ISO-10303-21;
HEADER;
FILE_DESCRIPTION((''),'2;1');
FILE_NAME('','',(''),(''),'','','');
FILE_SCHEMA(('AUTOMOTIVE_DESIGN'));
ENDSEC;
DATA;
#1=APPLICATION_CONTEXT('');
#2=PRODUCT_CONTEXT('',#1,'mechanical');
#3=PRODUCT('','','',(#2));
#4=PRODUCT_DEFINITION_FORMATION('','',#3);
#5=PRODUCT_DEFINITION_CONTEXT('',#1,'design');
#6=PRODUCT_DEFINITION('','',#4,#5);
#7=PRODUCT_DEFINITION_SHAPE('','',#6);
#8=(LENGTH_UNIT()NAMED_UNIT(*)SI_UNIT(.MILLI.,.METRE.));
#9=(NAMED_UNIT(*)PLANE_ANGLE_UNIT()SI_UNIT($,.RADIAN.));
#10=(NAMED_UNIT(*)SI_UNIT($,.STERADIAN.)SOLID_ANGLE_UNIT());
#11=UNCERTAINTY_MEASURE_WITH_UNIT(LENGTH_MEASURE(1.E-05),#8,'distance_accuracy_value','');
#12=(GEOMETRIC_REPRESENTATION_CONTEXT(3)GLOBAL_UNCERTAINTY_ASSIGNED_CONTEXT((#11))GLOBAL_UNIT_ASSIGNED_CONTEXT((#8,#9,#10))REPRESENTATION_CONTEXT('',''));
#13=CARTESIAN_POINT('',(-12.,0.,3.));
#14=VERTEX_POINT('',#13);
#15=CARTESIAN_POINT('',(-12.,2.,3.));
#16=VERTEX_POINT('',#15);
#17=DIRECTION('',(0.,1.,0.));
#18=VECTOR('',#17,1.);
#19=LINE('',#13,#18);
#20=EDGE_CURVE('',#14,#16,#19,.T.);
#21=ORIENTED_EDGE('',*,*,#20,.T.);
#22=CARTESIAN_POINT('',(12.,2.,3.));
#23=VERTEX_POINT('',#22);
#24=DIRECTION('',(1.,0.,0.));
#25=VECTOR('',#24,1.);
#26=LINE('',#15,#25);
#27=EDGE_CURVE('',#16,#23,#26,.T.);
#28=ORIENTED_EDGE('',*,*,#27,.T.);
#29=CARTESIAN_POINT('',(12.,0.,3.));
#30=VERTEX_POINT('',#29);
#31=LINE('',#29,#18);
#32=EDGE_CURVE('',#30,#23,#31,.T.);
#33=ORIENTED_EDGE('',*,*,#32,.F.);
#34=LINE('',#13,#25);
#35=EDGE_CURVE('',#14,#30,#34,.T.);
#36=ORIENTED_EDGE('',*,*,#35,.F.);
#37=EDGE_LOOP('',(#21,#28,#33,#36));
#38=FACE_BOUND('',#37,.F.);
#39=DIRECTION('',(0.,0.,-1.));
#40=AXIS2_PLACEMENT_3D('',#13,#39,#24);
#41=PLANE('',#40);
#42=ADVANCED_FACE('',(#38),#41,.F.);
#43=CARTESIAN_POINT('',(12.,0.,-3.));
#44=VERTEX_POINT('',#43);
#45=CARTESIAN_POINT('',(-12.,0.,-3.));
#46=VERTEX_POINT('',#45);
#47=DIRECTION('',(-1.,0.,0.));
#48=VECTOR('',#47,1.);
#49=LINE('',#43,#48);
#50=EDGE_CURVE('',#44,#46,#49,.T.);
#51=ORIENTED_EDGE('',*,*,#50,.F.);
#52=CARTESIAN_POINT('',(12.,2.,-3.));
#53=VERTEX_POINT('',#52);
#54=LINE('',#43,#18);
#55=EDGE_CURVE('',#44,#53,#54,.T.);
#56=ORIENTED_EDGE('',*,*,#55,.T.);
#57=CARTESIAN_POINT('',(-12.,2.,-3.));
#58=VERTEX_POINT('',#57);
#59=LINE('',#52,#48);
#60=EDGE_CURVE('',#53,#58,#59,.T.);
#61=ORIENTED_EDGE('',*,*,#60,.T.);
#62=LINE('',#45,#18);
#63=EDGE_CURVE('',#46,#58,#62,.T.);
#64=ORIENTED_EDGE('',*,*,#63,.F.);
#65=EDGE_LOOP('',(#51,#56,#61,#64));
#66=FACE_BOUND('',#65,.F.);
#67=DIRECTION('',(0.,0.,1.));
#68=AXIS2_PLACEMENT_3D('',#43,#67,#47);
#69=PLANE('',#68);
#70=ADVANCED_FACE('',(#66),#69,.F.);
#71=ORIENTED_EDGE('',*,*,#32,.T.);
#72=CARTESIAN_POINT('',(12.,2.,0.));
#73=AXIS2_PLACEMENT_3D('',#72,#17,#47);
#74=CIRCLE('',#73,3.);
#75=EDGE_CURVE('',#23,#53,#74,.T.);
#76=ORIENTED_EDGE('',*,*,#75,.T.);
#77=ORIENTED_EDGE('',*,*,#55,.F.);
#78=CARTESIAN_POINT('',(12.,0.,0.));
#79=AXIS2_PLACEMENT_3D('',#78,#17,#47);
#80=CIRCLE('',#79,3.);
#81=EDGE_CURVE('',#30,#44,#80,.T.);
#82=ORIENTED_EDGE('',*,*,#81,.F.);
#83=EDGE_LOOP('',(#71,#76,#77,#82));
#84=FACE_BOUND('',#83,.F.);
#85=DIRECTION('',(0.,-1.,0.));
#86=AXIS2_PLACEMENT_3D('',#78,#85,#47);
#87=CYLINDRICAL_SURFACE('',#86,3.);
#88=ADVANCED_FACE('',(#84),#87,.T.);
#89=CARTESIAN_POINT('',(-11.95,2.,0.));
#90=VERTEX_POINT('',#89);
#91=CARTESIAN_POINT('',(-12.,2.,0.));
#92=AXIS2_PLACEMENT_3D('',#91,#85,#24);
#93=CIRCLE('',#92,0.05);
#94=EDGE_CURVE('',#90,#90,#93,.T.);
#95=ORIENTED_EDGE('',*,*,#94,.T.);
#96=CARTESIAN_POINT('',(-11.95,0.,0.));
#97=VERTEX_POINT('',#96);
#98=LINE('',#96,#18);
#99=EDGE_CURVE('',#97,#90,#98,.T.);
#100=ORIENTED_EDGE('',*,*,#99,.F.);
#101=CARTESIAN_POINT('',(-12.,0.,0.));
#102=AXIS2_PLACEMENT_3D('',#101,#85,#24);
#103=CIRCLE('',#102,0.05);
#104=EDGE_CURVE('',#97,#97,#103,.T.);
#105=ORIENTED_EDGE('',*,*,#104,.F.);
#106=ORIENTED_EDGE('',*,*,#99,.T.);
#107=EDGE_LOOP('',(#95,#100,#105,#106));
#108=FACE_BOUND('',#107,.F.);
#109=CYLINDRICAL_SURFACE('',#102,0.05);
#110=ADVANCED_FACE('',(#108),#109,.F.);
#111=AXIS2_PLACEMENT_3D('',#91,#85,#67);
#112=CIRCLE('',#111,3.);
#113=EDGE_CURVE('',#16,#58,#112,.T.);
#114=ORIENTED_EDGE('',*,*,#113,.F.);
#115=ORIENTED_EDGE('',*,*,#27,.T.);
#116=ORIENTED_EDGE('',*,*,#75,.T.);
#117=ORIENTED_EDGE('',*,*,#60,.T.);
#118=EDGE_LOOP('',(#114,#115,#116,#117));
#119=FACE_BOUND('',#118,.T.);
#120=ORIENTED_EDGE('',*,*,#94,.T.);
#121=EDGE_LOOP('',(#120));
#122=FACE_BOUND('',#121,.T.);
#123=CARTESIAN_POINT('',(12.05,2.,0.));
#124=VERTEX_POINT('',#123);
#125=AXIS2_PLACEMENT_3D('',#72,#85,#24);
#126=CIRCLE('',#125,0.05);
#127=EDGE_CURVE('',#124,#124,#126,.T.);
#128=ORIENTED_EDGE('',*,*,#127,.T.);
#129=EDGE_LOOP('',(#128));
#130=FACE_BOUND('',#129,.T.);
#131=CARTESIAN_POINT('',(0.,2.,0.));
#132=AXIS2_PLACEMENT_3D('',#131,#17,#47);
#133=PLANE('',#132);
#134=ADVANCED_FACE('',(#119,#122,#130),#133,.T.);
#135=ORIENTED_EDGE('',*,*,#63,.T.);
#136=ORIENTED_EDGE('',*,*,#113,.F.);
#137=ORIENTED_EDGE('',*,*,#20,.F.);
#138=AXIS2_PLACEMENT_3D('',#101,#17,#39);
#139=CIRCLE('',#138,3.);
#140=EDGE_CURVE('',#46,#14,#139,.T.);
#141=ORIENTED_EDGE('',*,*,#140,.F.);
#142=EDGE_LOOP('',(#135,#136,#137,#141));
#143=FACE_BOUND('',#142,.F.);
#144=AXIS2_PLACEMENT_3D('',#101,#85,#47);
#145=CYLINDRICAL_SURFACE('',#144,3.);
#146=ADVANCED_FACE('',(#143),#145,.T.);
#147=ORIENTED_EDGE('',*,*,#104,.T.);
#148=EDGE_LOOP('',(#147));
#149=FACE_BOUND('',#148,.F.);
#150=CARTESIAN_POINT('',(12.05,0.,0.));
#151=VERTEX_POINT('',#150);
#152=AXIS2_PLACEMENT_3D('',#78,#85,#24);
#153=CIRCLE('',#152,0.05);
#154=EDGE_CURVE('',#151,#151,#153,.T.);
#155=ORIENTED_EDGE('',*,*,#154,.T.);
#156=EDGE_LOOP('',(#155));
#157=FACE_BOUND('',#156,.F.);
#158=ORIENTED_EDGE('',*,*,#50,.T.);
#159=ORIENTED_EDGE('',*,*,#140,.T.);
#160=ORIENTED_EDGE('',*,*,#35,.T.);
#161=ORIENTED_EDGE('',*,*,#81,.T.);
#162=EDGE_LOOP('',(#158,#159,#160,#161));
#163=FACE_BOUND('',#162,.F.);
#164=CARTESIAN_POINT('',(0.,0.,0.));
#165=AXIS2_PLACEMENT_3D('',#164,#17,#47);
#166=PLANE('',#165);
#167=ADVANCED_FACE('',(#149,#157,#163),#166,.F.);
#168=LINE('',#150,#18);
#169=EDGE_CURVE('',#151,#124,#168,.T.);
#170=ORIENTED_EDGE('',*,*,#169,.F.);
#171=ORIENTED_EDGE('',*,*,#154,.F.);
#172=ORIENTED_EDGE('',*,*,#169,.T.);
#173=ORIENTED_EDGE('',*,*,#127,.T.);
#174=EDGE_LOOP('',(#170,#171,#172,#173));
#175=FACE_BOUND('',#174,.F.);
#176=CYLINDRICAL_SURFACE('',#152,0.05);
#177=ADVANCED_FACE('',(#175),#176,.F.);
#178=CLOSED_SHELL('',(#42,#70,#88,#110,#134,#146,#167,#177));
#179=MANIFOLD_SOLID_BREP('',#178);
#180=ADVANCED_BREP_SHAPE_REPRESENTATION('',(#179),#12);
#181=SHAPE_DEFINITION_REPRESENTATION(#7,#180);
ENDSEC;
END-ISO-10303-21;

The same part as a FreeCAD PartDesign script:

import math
import FreeCAD as App
import Part
import Sketcher

V = App.Vector

doc = App.newDocument("Part")
body = doc.addObject("PartDesign::Body", "Body")

sketch1 = doc.addObject("Sketcher::SketchObject", "Sketch")
body.addObject(sketch1)
sketch1.AttachmentSupport = (doc.XZ_Plane, [""])
sketch1.MapMode = "FlatFace"
sketch1.addGeometry([
    Part.LineSegment(V(-12, 3, 0), V(12, 3, 0)),
    Part.ArcOfCircle(Part.Circle(V(12, 0, 0), V(0, 0, 1), 3), math.radians(-90), math.radians(90)),
    Part.LineSegment(V(12, -3, 0), V(-12, -3, 0)),
    Part.ArcOfCircle(Part.Circle(V(-12, 0, 0), V(0, 0, 1), 3), math.radians(90), math.radians(270)),
], False)
sketch1.addConstraint([
    Sketcher.Constraint("Tangent", 0, 2, 1, 2),
    Sketcher.Constraint("Tangent", 1, 1, 2, 1),
    Sketcher.Constraint("Tangent", 2, 2, 3, 2),
    Sketcher.Constraint("Tangent", 3, 1, 0, 1),
    Sketcher.Constraint("Horizontal", 0),
    Sketcher.Constraint("Horizontal", 2),
    Sketcher.Constraint("Symmetric", 1, 3, 3, 3, -1, 1),
    Sketcher.Constraint("Radius", 1, 3.0),
    Sketcher.Constraint("DistanceX", 0, 1, 0, 2, 24.0),
])
pad1 = doc.addObject("PartDesign::Pad", "Pad")
body.addObject(pad1)
pad1.Profile = sketch1
pad1.Length = 2
pad1.Reversed = True

sketch2 = doc.addObject("Sketcher::SketchObject", "Sketch001")
body.addObject(sketch2)
sketch2.AttachmentSupport = (doc.XZ_Plane, [""])
sketch2.MapMode = "FlatFace"
sketch2.AttachmentOffset = App.Placement(V(0, 0, -2), App.Rotation())
sketch2.addGeometry([
    Part.Circle(V(-12, 0, 0), V(0, 0, 1), 1.5),
    Part.Circle(V(12, 0, 0), V(0, 0, 1), 1.5),
], False)
sketch2.addConstraint([
    Sketcher.Constraint("Equal", 0, 1),
    Sketcher.Constraint("Symmetric", 0, 3, 1, 3, -1, 1),
    Sketcher.Constraint("PointOnObject", 0, 3, -1),
    Sketcher.Constraint("Diameter", 0, 3.0),
    Sketcher.Constraint("DistanceX", 0, 3, -1, 1, 12.0),
])
pocket1 = doc.addObject("PartDesign::Pocket", "Pocket")
body.addObject(pocket1)
pocket1.Profile = sketch2
pocket1.Length = 2
pocket1.Reversed = True

sketch3 = doc.addObject("Sketcher::SketchObject", "Sketch002")
body.addObject(sketch3)
sketch3.AttachmentSupport = (doc.XZ_Plane, [""])
sketch3.MapMode = "FlatFace"
sketch3.addGeometry([
    Part.Circle(V(12, 0, 0), V(0, 0, 1), 1.5),
    Part.Circle(V(12, 0, 0), V(0, 0, 1), 0.005),
    Part.Circle(V(-12, 0, 0), V(0, 0, 1), 1.5),
    Part.Circle(V(-12, 0, 0), V(0, 0, 1), 0.005),
], False)
sketch3.addConstraint([
    Sketcher.Constraint("Coincident", 1, 3, 0, 3),
    Sketcher.Constraint("Coincident", 3, 3, 2, 3),
    Sketcher.Constraint("Equal", 0, 2),
    Sketcher.Constraint("Equal", 1, 3),
    Sketcher.Constraint("Symmetric", 0, 3, 2, 3, -1, 1),
    Sketcher.Constraint("PointOnObject", 0, 3, -1),
    Sketcher.Constraint("Diameter", 1, 0.01),
    Sketcher.Constraint("Diameter", 0, 3.0),
    Sketcher.Constraint("DistanceX", -1, 1, 0, 3, 12.0),
])
pad2 = doc.addObject("PartDesign::Pad", "Pad001")
body.addObject(pad2)
pad2.Profile = sketch3
pad2.Length = 2
pad2.Reversed = True

sketch4 = doc.addObject("Sketcher::SketchObject", "Sketch003")
body.addObject(sketch4)
sketch4.AttachmentSupport = (doc.XZ_Plane, [""])
sketch4.MapMode = "FlatFace"
sketch4.addGeometry([
    Part.Circle(V(-12, 0, 0), V(0, 0, 1), 0.05),
    Part.Circle(V(12, 0, 0), V(0, 0, 1), 0.05),
], False)
sketch4.addConstraint([
    Sketcher.Constraint("Equal", 0, 1),
    Sketcher.Constraint("Symmetric", 0, 3, 1, 3, -1, 1),
    Sketcher.Constraint("PointOnObject", 0, 3, -1),
    Sketcher.Constraint("Diameter", 0, 0.1),
    Sketcher.Constraint("DistanceX", 0, 3, -1, 1, 12.0),
])
pocket2 = doc.addObject("PartDesign::Pocket", "Pocket001")
body.addObject(pocket2)
pocket2.Profile = sketch4
pocket2.Length = 2

doc.recompute()
